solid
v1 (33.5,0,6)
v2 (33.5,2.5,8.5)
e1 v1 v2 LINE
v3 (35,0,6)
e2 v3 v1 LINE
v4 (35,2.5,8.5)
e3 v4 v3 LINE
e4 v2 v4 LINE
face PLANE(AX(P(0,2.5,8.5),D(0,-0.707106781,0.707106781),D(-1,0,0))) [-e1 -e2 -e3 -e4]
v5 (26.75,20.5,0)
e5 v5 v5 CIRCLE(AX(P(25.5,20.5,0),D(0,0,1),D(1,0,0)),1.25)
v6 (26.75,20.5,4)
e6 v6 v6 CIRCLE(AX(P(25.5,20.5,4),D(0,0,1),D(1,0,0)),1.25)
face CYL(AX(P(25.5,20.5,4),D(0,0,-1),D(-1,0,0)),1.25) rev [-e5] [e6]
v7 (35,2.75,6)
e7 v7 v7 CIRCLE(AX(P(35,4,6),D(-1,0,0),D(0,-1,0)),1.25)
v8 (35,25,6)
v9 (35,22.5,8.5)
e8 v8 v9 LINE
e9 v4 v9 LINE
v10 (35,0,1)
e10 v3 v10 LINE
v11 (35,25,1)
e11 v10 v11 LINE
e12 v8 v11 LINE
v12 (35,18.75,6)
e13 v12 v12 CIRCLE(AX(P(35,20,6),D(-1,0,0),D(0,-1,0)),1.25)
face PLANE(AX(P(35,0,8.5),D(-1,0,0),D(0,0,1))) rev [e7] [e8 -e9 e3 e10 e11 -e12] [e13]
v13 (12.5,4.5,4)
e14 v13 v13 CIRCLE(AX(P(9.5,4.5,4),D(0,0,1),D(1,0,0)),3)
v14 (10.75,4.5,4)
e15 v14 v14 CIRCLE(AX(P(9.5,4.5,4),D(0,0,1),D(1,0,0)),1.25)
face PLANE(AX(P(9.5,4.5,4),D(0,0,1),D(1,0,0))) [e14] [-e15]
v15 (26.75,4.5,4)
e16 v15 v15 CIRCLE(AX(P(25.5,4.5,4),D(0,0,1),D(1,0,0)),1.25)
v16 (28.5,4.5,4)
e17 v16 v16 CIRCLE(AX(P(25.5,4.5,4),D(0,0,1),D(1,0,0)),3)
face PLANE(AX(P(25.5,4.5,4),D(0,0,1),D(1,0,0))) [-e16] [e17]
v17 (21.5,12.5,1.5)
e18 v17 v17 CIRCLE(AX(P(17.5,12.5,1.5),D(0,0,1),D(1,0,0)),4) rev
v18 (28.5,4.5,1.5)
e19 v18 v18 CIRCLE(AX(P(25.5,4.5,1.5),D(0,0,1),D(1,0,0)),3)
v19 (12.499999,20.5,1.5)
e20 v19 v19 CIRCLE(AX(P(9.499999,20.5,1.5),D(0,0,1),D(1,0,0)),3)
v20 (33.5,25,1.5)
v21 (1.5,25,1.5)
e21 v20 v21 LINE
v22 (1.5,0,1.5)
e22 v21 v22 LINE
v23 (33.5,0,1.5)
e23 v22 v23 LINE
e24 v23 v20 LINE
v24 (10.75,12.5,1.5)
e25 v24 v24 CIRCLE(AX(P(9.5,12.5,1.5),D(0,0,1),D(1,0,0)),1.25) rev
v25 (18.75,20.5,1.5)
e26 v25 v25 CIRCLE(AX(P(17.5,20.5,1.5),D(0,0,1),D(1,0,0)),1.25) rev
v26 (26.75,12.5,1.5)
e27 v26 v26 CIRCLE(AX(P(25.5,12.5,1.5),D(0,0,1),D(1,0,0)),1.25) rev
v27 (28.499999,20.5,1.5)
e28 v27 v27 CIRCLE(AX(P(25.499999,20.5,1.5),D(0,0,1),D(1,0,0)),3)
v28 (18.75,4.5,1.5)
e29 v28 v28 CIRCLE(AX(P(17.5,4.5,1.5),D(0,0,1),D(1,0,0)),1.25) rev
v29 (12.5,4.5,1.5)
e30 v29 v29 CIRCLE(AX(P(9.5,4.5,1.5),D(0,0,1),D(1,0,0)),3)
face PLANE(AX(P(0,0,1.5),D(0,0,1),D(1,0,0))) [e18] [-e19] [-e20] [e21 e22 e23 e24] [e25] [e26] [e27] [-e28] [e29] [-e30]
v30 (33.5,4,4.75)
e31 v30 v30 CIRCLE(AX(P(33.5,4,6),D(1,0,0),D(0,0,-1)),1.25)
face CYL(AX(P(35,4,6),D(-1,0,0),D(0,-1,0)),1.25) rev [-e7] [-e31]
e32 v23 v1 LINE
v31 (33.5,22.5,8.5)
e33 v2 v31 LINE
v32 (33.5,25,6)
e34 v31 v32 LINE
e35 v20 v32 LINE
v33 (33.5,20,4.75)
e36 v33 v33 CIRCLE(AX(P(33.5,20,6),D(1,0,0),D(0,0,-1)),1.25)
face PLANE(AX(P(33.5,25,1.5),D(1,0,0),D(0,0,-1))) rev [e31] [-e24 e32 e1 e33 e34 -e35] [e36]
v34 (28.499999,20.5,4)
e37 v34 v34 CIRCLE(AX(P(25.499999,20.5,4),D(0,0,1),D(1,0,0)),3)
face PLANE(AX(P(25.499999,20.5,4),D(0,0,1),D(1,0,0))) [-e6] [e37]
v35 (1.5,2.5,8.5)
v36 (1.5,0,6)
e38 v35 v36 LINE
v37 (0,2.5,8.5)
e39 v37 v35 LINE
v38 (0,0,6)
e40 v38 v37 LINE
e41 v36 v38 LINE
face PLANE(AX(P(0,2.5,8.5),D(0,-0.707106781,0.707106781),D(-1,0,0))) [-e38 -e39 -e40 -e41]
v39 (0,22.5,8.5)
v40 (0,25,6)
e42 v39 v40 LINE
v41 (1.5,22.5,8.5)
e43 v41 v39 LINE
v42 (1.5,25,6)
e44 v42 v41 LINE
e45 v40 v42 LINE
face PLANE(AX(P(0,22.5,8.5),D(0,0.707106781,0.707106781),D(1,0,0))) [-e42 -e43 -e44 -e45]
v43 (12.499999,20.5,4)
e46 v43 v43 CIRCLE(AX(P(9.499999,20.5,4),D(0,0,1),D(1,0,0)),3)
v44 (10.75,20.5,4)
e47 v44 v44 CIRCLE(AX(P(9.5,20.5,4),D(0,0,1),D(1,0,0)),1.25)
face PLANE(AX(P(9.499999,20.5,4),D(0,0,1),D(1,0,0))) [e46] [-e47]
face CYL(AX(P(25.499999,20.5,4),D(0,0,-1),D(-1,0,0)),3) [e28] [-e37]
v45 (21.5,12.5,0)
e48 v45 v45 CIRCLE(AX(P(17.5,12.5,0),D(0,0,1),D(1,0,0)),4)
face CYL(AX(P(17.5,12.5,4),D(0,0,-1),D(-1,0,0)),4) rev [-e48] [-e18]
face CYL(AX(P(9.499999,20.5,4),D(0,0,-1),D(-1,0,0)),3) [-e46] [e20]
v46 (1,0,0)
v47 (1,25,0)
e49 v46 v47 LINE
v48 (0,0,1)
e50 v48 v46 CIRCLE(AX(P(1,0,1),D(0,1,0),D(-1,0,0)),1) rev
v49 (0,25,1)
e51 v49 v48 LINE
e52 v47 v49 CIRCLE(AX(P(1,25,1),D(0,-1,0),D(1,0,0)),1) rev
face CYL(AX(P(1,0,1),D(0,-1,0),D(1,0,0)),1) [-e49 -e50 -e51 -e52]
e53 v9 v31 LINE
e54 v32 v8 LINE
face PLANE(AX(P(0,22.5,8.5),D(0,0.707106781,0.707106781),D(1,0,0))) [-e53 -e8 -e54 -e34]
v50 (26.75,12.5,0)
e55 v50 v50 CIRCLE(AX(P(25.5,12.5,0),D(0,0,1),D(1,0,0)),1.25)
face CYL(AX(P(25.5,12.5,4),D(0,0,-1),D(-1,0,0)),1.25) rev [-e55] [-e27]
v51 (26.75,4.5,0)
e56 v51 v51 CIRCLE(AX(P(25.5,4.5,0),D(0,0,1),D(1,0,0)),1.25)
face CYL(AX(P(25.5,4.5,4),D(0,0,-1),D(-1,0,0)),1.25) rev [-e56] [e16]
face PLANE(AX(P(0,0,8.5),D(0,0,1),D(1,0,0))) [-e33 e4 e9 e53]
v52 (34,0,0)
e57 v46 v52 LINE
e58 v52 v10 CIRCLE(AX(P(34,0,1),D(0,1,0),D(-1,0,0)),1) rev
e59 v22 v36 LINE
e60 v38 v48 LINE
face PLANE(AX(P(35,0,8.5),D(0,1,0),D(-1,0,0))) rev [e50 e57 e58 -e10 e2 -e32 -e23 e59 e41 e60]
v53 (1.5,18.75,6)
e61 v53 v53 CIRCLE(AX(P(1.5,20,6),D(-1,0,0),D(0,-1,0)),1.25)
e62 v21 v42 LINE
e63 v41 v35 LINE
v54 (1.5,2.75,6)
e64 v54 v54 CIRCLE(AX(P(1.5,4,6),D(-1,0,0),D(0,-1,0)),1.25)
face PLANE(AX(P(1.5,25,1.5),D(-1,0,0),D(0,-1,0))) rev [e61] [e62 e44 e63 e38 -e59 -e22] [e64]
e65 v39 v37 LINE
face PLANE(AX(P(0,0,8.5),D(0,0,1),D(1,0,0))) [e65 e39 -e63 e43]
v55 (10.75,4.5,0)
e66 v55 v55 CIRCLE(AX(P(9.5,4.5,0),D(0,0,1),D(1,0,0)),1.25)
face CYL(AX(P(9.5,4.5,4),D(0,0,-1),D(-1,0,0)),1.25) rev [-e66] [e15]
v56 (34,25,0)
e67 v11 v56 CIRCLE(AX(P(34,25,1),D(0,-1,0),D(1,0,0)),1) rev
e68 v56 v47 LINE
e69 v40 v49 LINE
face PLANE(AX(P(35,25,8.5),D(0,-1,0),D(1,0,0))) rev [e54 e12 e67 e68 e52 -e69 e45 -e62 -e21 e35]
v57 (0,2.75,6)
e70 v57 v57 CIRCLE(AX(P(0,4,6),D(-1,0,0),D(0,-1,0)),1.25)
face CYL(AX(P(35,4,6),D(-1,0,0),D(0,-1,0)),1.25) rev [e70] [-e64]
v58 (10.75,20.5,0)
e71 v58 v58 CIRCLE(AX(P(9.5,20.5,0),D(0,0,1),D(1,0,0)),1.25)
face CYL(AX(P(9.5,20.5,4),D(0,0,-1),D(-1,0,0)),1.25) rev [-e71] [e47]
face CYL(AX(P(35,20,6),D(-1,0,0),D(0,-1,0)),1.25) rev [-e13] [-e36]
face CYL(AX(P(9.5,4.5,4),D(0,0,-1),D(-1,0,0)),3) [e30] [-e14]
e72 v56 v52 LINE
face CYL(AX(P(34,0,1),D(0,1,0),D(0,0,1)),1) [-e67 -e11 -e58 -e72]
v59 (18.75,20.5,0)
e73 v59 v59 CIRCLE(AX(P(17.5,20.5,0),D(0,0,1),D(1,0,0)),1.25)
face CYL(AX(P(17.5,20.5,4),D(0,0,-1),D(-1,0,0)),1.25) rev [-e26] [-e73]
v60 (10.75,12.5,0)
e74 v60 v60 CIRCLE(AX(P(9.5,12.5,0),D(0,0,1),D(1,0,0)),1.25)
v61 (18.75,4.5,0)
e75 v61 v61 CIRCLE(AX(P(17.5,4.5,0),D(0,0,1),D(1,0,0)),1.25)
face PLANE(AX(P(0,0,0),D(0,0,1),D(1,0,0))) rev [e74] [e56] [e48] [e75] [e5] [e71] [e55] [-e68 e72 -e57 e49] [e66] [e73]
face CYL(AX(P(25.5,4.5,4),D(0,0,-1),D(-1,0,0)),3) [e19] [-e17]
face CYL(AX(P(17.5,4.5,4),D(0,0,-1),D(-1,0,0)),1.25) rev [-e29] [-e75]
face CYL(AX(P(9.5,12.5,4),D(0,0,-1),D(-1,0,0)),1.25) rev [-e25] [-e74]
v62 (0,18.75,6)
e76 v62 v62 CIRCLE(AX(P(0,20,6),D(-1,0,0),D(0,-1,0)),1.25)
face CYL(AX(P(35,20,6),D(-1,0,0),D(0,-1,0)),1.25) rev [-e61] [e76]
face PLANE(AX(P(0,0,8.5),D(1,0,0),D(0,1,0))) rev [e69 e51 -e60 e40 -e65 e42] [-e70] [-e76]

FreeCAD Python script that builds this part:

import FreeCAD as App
import Part
import Sketcher
from FreeCAD import Vector
Q = App.Units.Quantity


def edges_at(feature, points):
    """Names of the edges that pass closest to the given points."""
    edges = feature.Shape.Edges
    near = lambda p: min(range(len(edges)), key=lambda i: edges[i].distToShape(Part.Vertex(*p))[0])
    return sorted({f"Edge{near(p) + 1}" for p in points})

doc = App.newDocument("Part")
body = doc.addObject("PartDesign::Body", "Body")

sketch1 = doc.addObject("Sketcher::SketchObject", "Sketch")
body.addObject(sketch1)
sketch1.AttachmentSupport = (doc.XY_Plane, [""])
sketch1.MapMode = "FlatFace"
sketch1.addGeometry([
    Part.LineSegment(Vector(0, 25, 0), Vector(0, 0, 0)),
    Part.LineSegment(Vector(0, 0, 0), Vector(35, 0, 0)),
    Part.LineSegment(Vector(35, 0, 0), Vector(35, 25, 0)),
    Part.LineSegment(Vector(35, 25, 0), Vector(0, 25, 0)),
], False)
sketch1.addConstraint([
    Sketcher.Constraint("Coincident", 0, 2, 1, 1),
    Sketcher.Constraint("Coincident", 1, 2, 2, 1),
    Sketcher.Constraint("Coincident", 2, 2, 3, 1),
    Sketcher.Constraint("Coincident", 3, 2, 0, 1),
    Sketcher.Constraint("Vertical", 0),
    Sketcher.Constraint("Horizontal", 1),
    Sketcher.Constraint("Vertical", 2),
    Sketcher.Constraint("Horizontal", 3),
    Sketcher.Constraint("Coincident", 0, 2, -1, 1),
    Sketcher.Constraint("DistanceX", 1, 1, 1, 2, Q("35 mm")),
    Sketcher.Constraint("DistanceY", 0, 2, 0, 1, Q("25 mm")),
])
pad1 = doc.addObject("PartDesign::Pad", "Pad")
body.addObject(pad1)
pad1.Profile = sketch1
pad1.Length = 8.5

sketch2 = doc.addObject("Sketcher::SketchObject", "Sketch001")
body.addObject(sketch2)
sketch2.AttachmentSupport = (doc.XY_Plane, [""])
sketch2.MapMode = "FlatFace"
sketch2.AttachmentOffset = App.Placement(Vector(0, 0, 8.5), App.Rotation())
sketch2.addGeometry([
    Part.LineSegment(Vector(1.5, 25, 0), Vector(1.5, 0, 0)),
    Part.LineSegment(Vector(1.5, 0, 0), Vector(33.5, 0, 0)),
    Part.LineSegment(Vector(33.5, 0, 0), Vector(33.5, 25, 0)),
    Part.LineSegment(Vector(33.5, 25, 0), Vector(1.5, 25, 0)),
], False)
sketch2.addConstraint([
    Sketcher.Constraint("Coincident", 0, 2, 1, 1),
    Sketcher.Constraint("Coincident", 1, 2, 2, 1),
    Sketcher.Constraint("Coincident", 2, 2, 3, 1),
    Sketcher.Constraint("Coincident", 3, 2, 0, 1),
    Sketcher.Constraint("Vertical", 0),
    Sketcher.Constraint("Horizontal", 1),
    Sketcher.Constraint("Vertical", 2),
    Sketcher.Constraint("Horizontal", 3),
    Sketcher.Constraint("PointOnObject", 0, 2, -1),
    Sketcher.Constraint("DistanceX", 1, 1, 1, 2, Q("32 mm")),
    Sketcher.Constraint("DistanceY", 0, 2, 0, 1, Q("25 mm")),
    Sketcher.Constraint("DistanceX", -1, 1, 0, 2, Q("1.5 mm")),
])
pocket1 = doc.addObject("PartDesign::Pocket", "Pocket")
body.addObject(pocket1)
pocket1.Profile = sketch2
pocket1.Length = 7
doc.recompute()

fillet = doc.addObject("PartDesign::Fillet", "Fillet")
body.addObject(fillet)
fillet.Base = (pocket1, edges_at(pocket1, [(0, 12.5, 0), (35, 12.5, 0)]))
fillet.Radius = 1
doc.recompute()

chamfer = doc.addObject("PartDesign::Chamfer", "Chamfer")
body.addObject(chamfer)
chamfer.Base = (fillet, edges_at(fillet, [
    (0.75, 0, 8.5),
    (0.75, 25, 8.5),
    (34.25, 0, 8.5),
    (34.25, 25, 8.5),
]))
chamfer.Size = 2.5

sketch3 = doc.addObject("Sketcher::SketchObject", "Sketch002")
body.addObject(sketch3)
sketch3.AttachmentSupport = (doc.YZ_Plane, [""])
sketch3.MapMode = "FlatFace"
sketch3.addGeometry([
    Part.Circle(Vector(20, 6, 0), Vector(0, 0, 1), 1.25),
    Part.Circle(Vector(4, 6, 0), Vector(0, 0, 1), 1.25),
], False)
sketch3.addConstraint([
    Sketcher.Constraint("Equal", 0, 1),
    Sketcher.Constraint("Horizontal", 0, 3, 1, 3),
    Sketcher.Constraint("Diameter", 0, Q("2.5 mm")),
    Sketcher.Constraint("DistanceX", -1, 1, 0, 3, Q("20 mm")),
    Sketcher.Constraint("DistanceY", -1, 1, 0, 3, Q("6 mm")),
    Sketcher.Constraint("DistanceX", -1, 1, 1, 3, Q("4 mm")),
])
pocket2 = doc.addObject("PartDesign::Pocket", "Pocket001")
body.addObject(pocket2)
pocket2.Profile = sketch3
pocket2.Length = 35
pocket2.Reversed = True

sketch4 = doc.addObject("Sketcher::SketchObject", "Sketch003")
body.addObject(sketch4)
sketch4.AttachmentSupport = (doc.XY_Plane, [""])
sketch4.MapMode = "FlatFace"
sketch4.AttachmentOffset = App.Placement(Vector(0, 0, 1.5), App.Rotation())
sketch4.addGeometry([
    Part.Circle(Vector(9.5, 4.5, 0), Vector(0, 0, 1), 3),
    Part.Circle(Vector(25.5, 4.5, 0), Vector(0, 0, 1), 3),
    Part.Circle(Vector(25.499999, 20.5, 0), Vector(0, 0, 1), 3),
    Part.Circle(Vector(9.499999, 20.5, 0), Vector(0, 0, 1), 3),
], False)
sketch4.addConstraint([
    Sketcher.Constraint("Equal", 0, 1),
    Sketcher.Constraint("Equal", 1, 2),
    Sketcher.Constraint("Equal", 2, 3),
    Sketcher.Constraint("Horizontal", 0, 3, 1, 3),
    Sketcher.Constraint("Horizontal", 2, 3, 3, 3),
    Sketcher.Constraint("Vertical", 1, 3, 2, 3),
    Sketcher.Constraint("Vertical", 0, 3, 3, 3),
    Sketcher.Constraint("Diameter", 0, Q("6 mm")),
    Sketcher.Constraint("DistanceX", 0, 3, 1, 3, Q("16 mm")),
    Sketcher.Constraint("DistanceY", 1, 3, 2, 3, Q("16 mm")),
    Sketcher.Constraint("DistanceX", -1, 1, 0, 3, Q("9.5 mm")),
    Sketcher.Constraint("DistanceY", -1, 1, 0, 3, Q("4.5 mm")),
])
pad2 = doc.addObject("PartDesign::Pad", "Pad001")
body.addObject(pad2)
pad2.Profile = sketch4
pad2.Length = 2.5

sketch5 = doc.addObject("Sketcher::SketchObject", "Sketch004")
body.addObject(sketch5)
sketch5.AttachmentSupport = (doc.XY_Plane, [""])
sketch5.MapMode = "FlatFace"
sketch5.AttachmentOffset = App.Placement(Vector(0, 0, 1.5), App.Rotation())
sketch5.addGeometry([
    Part.Circle(Vector(17.5, 12.5, 0), Vector(0, 0, 1), 4),
    Part.Circle(Vector(9.5, 4.5, 0), Vector(0, 0, 1), 1.25),
    Part.Circle(Vector(17.5, 4.5, 0), Vector(0, 0, 1), 1.25),
    Part.Circle(Vector(25.5, 4.5, 0), Vector(0, 0, 1), 1.25),
    Part.Circle(Vector(25.5, 12.5, 0), Vector(0, 0, 1), 1.25),
    Part.Circle(Vector(17.5, 20.5, 0), Vector(0, 0, 1), 1.25),
    Part.Circle(Vector(25.5, 20.5, 0), Vector(0, 0, 1), 1.25),
    Part.Circle(Vector(9.5, 12.5, 0), Vector(0, 0, 1), 1.25),
    Part.Circle(Vector(9.5, 20.5, 0), Vector(0, 0, 1), 1.25),
], False)
sketch5.addConstraint([
    Sketcher.Constraint("Equal", 1, 2),
    Sketcher.Constraint("Equal", 2, 3),
    Sketcher.Constraint("Equal", 3, 4),
    Sketcher.Constraint("Equal", 4, 5),
    Sketcher.Constraint("Equal", 5, 6),
    Sketcher.Constraint("Equal", 6, 7),
    Sketcher.Constraint("Equal", 7, 8),
    Sketcher.Constraint("Horizontal", 1, 3, 2, 3),
    Sketcher.Constraint("Horizontal", 2, 3, 3, 3),
    Sketcher.Constraint("Horizontal", 0, 3, 4, 3),
    Sketcher.Constraint("Horizontal", 5, 3, 6, 3),
    Sketcher.Constraint("Horizontal", 4, 3, 7, 3),
    Sketcher.Constraint("Horizontal", 6, 3, 8, 3),
    Sketcher.Constraint("Vertical", 0, 3, 2, 3),
    Sketcher.Constraint("Vertical", 3, 3, 4, 3),
    Sketcher.Constraint("Vertical", 2, 3, 5, 3),
    Sketcher.Constraint("Vertical", 4, 3, 6, 3),
    Sketcher.Constraint("Vertical", 1, 3, 7, 3),
    Sketcher.Constraint("Vertical", 7, 3, 8, 3),
    Sketcher.Constraint("Diameter", 0, Q("8 mm")),
    Sketcher.Constraint("Diameter", 1, Q("2.5 mm")),
    Sketcher.Constraint("DistanceX", 1, 3, 0, 3, Q("8 mm")),
    Sketcher.Constraint("DistanceY", 1, 3, 0, 3, Q("8 mm")),
    Sketcher.Constraint("DistanceX", 2, 3, 3, 3, Q("8 mm")),
    Sketcher.Constraint("DistanceY", 0, 3, 5, 3, Q("8 mm")),
    Sketcher.Constraint("DistanceX", -1, 1, 0, 3, Q("17.5 mm")),
    Sketcher.Constraint("DistanceY", -1, 1, 0, 3, Q("12.5 mm")),
])
pocket3 = doc.addObject("PartDesign::Pocket", "Pocket002")
body.addObject(pocket3)
pocket3.Profile = sketch5
pocket3.Type = "ThroughAll"
pocket3.Midplane = True

doc.recompute()
